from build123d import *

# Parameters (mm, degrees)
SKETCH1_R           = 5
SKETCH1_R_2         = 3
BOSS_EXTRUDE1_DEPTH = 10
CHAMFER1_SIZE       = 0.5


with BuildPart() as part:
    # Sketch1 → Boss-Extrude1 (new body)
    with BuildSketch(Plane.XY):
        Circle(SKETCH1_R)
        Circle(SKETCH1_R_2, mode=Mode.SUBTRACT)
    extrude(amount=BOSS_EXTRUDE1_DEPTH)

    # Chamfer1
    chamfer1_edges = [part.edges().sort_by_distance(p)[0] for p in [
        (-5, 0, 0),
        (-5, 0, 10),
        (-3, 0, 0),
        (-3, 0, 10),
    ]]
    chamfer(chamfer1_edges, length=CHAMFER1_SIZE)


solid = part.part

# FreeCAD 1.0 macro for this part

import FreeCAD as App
import Part
import Sketcher

V = App.Vector
Q = App.Units.Quantity


def edges_at(feature, points):
    """Names of the edges that pass closest to the given points."""
    edges = feature.Shape.Edges
    near = lambda p: min(range(len(edges)), key=lambda i: edges[i].distToShape(Part.Vertex(*p))[0])
    return sorted({f"Edge{near(p) + 1}" for p in points})

doc = App.newDocument("Part")
params = doc.addObject("Spreadsheet::Sheet", "Params")
for row, (alias, value) in enumerate([
    ("sketch1_diameter", "10 mm"),
    ("sketch1_diameter2", "6 mm"),
    ("pad1_length", "10 mm"),
    ("chamfer_size", "0.5 mm"),
], start=1):
    params.set(f"A{row}", alias)
    params.set(f"B{row}", "=" + value)
    params.setAlias(f"B{row}", alias)

body = doc.addObject("PartDesign::Body", "Body")

# Sketch on XY plane
sketch1 = body.newObject("Sketcher::SketchObject", "Sketch")
sketch1.AttachmentSupport = (doc.getObject("XY_Plane"), [""])
sketch1.MapMode = "FlatFace"
sketch1.addGeometry(Part.Circle(V(0, 0, 0), V(0, 0, 1), 5), False)
sketch1.addGeometry(Part.Circle(V(0, 0, 0), V(0, 0, 1), 3), False)
sketch1.addConstraint(Sketcher.Constraint("Coincident", 0, 3, -1, 1))
sketch1.addConstraint(Sketcher.Constraint("Coincident", 1, 3, -1, 1))
sketch1.addConstraint(Sketcher.Constraint("Diameter", 0, Q("10 mm")))
sketch1.addConstraint(Sketcher.Constraint("Diameter", 1, Q("6 mm")))
sketch1.setExpression("Constraints[2]", "Params.sketch1_diameter")
sketch1.setExpression("Constraints[3]", "Params.sketch1_diameter2")
pad1 = body.newObject("PartDesign::Pad", "Pad")
pad1.Profile = sketch1
pad1.setExpression("Length", "Params.pad1_length")
doc.recompute()

chamfer = body.newObject("PartDesign::Chamfer", "Chamfer")
chamfer.Base = (pad1, edges_at(pad1, [
    (-5, 0, 0),
    (-5, 0, 10),
    (-3, 0, 0),
    (-3, 0, 10),
]))
chamfer.setExpression("Size", "Params.chamfer_size")

doc.recompute()
